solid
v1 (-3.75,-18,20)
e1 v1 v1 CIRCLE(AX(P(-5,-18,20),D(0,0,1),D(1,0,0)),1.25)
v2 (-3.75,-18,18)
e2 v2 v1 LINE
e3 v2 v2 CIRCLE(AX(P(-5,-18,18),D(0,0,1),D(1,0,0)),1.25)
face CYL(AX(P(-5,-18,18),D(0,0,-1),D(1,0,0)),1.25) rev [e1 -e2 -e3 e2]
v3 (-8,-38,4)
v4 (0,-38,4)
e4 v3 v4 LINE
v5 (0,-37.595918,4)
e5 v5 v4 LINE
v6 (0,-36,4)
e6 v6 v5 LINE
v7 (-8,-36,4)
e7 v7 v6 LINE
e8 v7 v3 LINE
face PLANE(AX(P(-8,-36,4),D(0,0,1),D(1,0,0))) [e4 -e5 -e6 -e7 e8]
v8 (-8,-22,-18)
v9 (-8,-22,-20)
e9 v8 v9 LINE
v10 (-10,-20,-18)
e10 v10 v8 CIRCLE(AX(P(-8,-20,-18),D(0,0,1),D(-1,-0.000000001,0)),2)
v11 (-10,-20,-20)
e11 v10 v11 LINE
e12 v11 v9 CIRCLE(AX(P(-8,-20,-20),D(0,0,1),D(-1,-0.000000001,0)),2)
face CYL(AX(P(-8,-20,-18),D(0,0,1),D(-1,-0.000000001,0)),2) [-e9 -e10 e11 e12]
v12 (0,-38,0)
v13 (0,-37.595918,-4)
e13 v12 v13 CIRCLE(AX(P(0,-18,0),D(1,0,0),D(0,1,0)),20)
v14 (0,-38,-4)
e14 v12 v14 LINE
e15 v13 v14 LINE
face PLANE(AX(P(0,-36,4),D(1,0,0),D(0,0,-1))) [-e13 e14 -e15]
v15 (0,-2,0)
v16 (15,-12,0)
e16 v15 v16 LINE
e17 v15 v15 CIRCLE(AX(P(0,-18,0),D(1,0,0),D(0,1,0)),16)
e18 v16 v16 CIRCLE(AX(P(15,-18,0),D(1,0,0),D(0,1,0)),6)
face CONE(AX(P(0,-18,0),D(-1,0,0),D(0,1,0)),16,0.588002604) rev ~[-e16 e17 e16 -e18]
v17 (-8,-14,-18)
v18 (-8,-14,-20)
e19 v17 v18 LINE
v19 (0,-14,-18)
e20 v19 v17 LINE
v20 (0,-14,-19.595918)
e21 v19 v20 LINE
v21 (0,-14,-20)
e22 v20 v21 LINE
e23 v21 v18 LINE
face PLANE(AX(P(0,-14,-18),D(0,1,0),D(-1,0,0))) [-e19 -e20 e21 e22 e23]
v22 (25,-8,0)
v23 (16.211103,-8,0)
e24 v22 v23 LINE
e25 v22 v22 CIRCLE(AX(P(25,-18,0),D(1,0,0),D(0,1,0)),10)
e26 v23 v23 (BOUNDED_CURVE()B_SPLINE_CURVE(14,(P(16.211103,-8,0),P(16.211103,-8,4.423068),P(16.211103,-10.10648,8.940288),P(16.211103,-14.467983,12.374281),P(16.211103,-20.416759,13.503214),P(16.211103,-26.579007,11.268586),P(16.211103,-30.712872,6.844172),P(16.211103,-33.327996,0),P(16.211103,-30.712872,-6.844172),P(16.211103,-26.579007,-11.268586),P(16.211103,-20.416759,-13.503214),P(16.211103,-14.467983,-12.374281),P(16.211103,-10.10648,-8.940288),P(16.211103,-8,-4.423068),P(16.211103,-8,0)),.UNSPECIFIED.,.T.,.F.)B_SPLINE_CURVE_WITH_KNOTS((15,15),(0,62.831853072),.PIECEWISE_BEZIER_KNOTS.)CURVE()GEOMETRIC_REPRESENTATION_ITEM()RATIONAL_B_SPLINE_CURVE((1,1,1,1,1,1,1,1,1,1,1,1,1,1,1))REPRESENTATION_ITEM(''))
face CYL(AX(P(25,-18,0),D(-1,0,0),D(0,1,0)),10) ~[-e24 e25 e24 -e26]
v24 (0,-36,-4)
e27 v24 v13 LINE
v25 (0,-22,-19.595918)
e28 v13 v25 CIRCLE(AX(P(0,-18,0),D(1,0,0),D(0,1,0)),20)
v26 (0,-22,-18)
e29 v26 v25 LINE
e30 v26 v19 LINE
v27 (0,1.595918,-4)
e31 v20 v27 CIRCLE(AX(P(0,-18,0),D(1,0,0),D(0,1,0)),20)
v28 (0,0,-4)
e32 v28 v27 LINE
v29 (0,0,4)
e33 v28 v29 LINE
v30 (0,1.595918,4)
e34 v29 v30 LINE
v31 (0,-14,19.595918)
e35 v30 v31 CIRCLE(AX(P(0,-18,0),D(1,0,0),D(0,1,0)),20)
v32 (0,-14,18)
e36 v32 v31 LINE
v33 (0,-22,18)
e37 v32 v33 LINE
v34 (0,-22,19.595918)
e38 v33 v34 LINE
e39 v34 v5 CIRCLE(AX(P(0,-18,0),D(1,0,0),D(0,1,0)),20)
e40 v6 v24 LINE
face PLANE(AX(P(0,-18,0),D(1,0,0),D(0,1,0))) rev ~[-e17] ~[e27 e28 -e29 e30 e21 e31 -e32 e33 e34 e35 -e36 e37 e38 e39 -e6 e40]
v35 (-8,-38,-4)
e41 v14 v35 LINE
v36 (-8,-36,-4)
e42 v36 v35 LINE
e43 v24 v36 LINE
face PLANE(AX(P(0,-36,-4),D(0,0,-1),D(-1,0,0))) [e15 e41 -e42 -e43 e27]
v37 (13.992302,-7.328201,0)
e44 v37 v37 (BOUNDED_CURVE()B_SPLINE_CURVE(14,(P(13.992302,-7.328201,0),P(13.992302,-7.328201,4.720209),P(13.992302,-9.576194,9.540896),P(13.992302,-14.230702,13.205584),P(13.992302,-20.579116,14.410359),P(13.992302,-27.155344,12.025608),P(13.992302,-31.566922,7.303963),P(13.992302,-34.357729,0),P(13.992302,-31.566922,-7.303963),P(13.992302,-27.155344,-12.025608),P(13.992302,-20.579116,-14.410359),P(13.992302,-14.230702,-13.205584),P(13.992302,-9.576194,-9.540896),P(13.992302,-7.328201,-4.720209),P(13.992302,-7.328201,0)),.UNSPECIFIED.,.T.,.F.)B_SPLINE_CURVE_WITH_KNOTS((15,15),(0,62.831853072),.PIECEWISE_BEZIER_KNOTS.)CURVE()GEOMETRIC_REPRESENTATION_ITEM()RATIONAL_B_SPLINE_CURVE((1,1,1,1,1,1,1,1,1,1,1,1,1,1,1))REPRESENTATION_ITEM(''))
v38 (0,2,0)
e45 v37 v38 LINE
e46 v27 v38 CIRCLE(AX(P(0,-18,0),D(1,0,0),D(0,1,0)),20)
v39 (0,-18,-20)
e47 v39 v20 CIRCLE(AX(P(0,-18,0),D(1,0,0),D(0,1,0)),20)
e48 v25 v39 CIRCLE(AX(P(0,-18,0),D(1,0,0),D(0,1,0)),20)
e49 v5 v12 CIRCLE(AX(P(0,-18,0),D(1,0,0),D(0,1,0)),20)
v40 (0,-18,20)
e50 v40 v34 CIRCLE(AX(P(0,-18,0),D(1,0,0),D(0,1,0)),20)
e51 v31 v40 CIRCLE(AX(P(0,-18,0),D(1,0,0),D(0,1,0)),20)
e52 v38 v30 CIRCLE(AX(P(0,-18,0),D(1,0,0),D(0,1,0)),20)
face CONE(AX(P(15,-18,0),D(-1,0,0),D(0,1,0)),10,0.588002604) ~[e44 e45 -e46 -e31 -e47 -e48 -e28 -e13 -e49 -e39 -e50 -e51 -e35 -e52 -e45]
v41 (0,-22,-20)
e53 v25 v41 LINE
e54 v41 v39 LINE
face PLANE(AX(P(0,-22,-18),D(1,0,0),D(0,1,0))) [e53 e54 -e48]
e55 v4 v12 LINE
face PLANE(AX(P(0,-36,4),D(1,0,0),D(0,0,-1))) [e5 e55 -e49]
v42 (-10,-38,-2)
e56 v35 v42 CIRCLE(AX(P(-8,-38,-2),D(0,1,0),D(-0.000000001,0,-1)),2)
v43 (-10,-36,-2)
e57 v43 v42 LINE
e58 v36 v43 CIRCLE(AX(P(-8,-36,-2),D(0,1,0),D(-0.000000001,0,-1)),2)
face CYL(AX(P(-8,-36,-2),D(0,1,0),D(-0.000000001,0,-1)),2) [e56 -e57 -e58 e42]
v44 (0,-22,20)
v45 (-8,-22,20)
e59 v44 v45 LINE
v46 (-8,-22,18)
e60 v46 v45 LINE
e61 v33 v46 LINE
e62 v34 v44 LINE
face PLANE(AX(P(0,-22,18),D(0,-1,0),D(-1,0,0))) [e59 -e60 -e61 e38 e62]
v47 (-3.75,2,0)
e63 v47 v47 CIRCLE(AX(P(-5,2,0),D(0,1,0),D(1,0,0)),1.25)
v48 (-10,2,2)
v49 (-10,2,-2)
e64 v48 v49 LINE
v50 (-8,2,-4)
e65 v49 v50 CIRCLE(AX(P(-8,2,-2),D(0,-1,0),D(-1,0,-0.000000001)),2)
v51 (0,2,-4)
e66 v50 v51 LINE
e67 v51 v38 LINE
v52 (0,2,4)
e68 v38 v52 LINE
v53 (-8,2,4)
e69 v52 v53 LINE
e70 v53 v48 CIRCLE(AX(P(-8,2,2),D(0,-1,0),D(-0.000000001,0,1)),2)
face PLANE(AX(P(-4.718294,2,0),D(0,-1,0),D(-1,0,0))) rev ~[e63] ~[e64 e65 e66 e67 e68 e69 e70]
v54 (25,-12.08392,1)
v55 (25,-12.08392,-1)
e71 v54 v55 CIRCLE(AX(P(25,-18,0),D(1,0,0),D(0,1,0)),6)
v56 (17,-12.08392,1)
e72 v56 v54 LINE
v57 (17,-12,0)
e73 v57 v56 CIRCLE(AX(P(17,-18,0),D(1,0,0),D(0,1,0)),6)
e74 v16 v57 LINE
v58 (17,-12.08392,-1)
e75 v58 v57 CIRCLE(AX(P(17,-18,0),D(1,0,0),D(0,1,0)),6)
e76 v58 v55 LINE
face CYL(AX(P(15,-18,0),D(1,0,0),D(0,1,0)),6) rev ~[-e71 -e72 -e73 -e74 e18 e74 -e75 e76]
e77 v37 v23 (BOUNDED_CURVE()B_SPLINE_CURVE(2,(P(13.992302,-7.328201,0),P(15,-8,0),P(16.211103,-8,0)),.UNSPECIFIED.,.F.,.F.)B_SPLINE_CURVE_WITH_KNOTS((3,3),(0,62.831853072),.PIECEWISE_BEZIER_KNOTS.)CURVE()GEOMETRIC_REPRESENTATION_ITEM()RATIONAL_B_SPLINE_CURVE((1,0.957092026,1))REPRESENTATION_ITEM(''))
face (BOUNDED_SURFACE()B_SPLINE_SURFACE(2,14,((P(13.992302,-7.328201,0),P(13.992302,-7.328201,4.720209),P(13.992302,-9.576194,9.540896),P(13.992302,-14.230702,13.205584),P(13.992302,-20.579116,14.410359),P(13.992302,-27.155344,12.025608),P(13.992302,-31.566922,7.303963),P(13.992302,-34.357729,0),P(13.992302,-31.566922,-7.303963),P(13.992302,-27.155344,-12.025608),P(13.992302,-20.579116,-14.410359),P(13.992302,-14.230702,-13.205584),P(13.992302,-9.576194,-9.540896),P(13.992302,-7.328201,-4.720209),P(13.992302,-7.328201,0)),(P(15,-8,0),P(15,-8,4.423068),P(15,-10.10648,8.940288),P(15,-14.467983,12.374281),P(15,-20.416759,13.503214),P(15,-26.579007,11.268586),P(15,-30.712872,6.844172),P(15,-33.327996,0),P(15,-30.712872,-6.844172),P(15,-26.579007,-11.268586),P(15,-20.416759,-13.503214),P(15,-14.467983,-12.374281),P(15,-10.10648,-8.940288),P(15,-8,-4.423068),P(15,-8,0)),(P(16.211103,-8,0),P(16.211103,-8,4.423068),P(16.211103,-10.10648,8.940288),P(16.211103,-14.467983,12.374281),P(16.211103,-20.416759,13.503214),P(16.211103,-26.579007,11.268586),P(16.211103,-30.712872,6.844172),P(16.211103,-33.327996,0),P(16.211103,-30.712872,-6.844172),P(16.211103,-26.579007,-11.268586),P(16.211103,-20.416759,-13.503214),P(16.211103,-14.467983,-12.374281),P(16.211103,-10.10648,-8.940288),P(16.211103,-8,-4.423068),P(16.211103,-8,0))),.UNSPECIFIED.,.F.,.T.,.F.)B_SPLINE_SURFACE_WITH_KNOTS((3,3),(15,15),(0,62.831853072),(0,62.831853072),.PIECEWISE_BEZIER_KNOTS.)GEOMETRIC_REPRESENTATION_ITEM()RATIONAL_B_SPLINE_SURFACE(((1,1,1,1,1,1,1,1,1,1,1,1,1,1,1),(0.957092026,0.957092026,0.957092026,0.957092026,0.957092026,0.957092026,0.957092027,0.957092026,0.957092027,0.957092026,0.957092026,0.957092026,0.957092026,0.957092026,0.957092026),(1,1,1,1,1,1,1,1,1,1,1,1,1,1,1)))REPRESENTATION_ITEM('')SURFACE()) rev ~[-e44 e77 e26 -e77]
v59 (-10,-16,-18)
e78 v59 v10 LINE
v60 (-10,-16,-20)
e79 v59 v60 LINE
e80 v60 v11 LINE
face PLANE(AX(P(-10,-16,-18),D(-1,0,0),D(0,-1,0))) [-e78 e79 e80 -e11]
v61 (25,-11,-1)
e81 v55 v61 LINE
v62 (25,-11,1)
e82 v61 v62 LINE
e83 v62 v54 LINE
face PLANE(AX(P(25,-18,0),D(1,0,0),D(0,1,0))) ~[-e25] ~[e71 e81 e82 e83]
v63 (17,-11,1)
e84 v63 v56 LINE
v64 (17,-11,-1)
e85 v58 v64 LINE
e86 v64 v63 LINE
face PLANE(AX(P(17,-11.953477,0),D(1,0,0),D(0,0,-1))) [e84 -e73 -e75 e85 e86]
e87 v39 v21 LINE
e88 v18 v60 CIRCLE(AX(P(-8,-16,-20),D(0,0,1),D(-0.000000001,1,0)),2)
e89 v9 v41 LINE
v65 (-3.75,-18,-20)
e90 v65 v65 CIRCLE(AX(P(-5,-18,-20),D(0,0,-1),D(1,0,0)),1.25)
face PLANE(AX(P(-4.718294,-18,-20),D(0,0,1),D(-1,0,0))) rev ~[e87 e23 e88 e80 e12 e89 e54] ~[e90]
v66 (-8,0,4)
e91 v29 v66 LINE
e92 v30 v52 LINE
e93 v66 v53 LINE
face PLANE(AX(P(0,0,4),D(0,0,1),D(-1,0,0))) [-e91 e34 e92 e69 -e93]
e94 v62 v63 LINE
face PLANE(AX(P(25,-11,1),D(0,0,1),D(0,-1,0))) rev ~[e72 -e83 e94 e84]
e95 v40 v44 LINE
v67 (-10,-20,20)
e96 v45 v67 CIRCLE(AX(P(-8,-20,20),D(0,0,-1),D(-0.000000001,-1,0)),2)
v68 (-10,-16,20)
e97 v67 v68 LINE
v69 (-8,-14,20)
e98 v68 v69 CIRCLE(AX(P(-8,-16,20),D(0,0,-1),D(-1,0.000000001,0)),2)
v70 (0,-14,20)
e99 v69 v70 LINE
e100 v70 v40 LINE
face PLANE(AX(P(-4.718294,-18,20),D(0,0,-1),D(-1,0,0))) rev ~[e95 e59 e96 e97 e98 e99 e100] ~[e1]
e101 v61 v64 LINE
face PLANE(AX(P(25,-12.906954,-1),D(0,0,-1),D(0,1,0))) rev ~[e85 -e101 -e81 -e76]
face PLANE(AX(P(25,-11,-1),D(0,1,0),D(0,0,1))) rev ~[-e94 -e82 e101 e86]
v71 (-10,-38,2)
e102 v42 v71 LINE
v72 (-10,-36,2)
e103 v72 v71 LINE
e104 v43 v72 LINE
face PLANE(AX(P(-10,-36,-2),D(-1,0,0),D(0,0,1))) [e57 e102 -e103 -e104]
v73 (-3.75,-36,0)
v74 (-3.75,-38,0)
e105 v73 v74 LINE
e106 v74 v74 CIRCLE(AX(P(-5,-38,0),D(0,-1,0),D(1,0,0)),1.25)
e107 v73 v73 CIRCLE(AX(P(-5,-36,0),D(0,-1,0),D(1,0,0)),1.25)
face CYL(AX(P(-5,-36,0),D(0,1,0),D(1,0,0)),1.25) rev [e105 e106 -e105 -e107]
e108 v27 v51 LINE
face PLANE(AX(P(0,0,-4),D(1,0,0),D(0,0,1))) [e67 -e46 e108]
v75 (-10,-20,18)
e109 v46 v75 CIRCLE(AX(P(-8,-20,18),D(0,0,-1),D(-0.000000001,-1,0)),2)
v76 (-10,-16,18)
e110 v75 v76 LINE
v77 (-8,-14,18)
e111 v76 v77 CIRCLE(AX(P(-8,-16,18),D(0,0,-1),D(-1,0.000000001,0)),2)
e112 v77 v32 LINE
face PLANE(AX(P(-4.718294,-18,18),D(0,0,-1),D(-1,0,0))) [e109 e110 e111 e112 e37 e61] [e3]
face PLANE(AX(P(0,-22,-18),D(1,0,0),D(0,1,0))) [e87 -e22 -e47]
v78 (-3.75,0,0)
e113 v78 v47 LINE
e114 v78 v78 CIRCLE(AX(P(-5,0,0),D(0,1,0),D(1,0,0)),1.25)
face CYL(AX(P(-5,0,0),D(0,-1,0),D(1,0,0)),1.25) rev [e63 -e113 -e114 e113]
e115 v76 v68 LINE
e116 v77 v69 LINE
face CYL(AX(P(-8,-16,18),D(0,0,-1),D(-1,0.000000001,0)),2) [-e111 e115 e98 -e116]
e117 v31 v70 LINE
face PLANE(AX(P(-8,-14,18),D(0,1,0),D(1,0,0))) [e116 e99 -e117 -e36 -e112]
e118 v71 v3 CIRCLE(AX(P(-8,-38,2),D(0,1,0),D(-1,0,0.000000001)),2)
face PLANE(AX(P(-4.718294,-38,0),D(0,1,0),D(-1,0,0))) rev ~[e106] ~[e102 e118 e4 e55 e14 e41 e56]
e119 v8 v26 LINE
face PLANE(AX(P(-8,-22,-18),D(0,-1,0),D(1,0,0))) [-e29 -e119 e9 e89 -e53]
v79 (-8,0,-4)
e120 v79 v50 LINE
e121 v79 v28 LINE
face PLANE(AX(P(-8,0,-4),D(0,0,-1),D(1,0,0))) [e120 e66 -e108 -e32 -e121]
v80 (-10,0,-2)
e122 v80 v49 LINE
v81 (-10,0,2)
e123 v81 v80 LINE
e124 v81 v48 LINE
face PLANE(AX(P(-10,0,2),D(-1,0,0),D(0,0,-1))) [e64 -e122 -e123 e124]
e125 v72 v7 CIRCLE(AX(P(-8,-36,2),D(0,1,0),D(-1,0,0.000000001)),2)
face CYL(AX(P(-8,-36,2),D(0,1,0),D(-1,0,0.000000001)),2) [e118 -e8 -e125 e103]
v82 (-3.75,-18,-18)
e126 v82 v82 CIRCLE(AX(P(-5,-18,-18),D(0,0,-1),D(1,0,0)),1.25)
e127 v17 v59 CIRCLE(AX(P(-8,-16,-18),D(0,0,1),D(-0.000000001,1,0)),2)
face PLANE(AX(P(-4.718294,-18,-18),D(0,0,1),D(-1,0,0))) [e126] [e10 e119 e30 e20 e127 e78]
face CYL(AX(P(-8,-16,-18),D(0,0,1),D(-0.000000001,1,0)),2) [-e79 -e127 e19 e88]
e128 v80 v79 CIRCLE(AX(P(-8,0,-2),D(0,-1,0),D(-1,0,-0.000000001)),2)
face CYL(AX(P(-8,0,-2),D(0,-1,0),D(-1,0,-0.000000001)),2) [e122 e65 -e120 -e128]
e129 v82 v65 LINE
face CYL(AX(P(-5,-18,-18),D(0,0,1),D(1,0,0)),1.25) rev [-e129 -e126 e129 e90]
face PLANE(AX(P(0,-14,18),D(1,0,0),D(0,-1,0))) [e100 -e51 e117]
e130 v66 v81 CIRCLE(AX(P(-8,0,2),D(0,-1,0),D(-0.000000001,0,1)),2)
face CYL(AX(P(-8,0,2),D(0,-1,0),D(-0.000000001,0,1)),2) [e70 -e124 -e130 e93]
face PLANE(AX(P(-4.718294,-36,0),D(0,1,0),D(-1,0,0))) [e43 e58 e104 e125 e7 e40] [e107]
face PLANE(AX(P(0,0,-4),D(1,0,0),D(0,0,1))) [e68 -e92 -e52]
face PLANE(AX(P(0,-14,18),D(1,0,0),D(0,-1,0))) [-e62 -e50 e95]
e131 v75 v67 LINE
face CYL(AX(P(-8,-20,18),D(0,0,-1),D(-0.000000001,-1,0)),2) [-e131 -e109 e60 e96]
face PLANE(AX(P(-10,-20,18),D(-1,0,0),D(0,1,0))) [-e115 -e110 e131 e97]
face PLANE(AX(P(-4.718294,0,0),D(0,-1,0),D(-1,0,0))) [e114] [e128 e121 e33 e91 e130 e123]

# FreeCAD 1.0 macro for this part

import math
import FreeCAD as App
import Part
import Sketcher
Q = App.Units.Quantity


def edges_at(feature, points):
    """Names of the edges that pass closest to the given points."""
    edges = feature.Shape.Edges
    near = lambda p: min(range(len(edges)), key=lambda i: edges[i].distToShape(Part.Vertex(*p))[0])
    return sorted({f"Edge{near(p) + 1}" for p in points})


def add_polygon(sketch, points):
    """Adds a closed chain of lines whose ends are joined by coincident constraints."""
    first, n = sketch.GeometryCount, len(points)
    for a, b in zip(points, points[1:] + points[:1]):
        sketch.addGeometry(Part.LineSegment(App.Vector(*a, 0), App.Vector(*b, 0)), False)
    for i in range(n):
        sketch.addConstraint(Sketcher.Constraint("Coincident", first + i, 2, first + (i + 1) % n, 1))

doc = App.newDocument("Part")
params = doc.addObject("Spreadsheet::Sheet", "Params")
for row, (alias, value) in enumerate([
    ("sketch1_radius", "2 mm"),
    ("sketch1_diameter", "2.5 mm"),
    ("sketch1_width", "8 mm"),
    ("pad1_length", "2 mm"),
    ("sketch2_width", "10 mm"),
    ("sketch2_width2", "25 mm"),
    ("sketch2_height", "4 mm"),
    ("revolution_angle", "360 deg"),
    ("fillet_radius", "4 mm"),
    ("sketch3_height", "2 mm"),
    ("pocket1_length", "8 mm"),
], start=1):
    params.set(f"A{row}", alias)
    params.set(f"B{row}", "=" + value)
    params.setAlias(f"B{row}", alias)

body = doc.addObject("PartDesign::Body", "Body")

sketch1 = body.newObject("Sketcher::SketchObject", "Sketch")
sketch1.AttachmentSupport = (doc.getObject("XZ_Plane"), [""])
sketch1.MapMode = "FlatFace"
sketch1.addGeometry([
    Part.LineSegment(App.Vector(0, 4, 0), App.Vector(0, -4, 0)),
    Part.LineSegment(App.Vector(0, -4, 0), App.Vector(-8, -4, 0)),
    Part.ArcOfCircle(Part.Circle(App.Vector(-8, -2, 0), App.Vector(0, 0, 1), 2), math.radians(-180), math.radians(-90)),
    Part.LineSegment(App.Vector(-10, -2, 0), App.Vector(-10, 2, 0)),
    Part.ArcOfCircle(Part.Circle(App.Vector(-8, 2, 0), App.Vector(0, 0, 1), 2), math.radians(90), math.radians(180)),
    Part.LineSegment(App.Vector(-8, 4, 0), App.Vector(0, 4, 0)),
    Part.Circle(App.Vector(-5, 0, 0), App.Vector(0, 0, 1), 1.2),
], False)
sketch1.addConstraint([
    Sketcher.Constraint("Coincident", 0, 2, 1, 1),
    Sketcher.Constraint("Tangent", 1, 2, 2, 2),
    Sketcher.Constraint("Tangent", 2, 1, 3, 1),
    Sketcher.Constraint("Tangent", 3, 2, 4, 2),
    Sketcher.Constraint("Tangent", 4, 1, 5, 1),
    Sketcher.Constraint("Coincident", 5, 2, 0, 1),
    Sketcher.Constraint("Vertical", 0),
    Sketcher.Constraint("Horizontal", 1),
    Sketcher.Constraint("Vertical", 3),
    Sketcher.Constraint("Horizontal", 5),
    Sketcher.Constraint("Equal", 2, 4),
    Sketcher.Constraint("Symmetric", 0, 2, 5, 2, -1, 1),
    Sketcher.Constraint("PointOnObject", 6, 3, -1),
    Sketcher.Constraint("Equal", 5, 0),
    Sketcher.Constraint("Radius", 2, Q("2 mm")),
    Sketcher.Constraint("Diameter", 6, Q("2.5 mm")),
    Sketcher.Constraint("DistanceX", 1, 2, 1, 1, Q("8 mm")),
    Sketcher.Constraint("DistanceX", 6, 3, -1, 1, Q("5 mm")),
])
sketch1.setExpression("Constraints[14]", "Params.sketch1_radius")
sketch1.setExpression("Constraints[15]", "Params.sketch1_diameter")
sketch1.setExpression("Constraints[16]", "Params.sketch1_width")
pad1 = body.newObject("PartDesign::Pad", "Pad")
pad1.Profile = sketch1
pad1.setExpression("Length", "Params.pad1_length")
pad1.Reversed = True

sketch2 = body.newObject("Sketcher::SketchObject", "Sketch001")
sketch2.AttachmentSupport = (doc.getObject("XY_Plane"), [""])
sketch2.MapMode = "FlatFace"
add_polygon(sketch2, [(0, 2), (0, -2), (15, -12), (25, -12), (25, -8), (15, -8)])
sketch2.addGeometry(Part.LineSegment(App.Vector(0, -18, 0), App.Vector(25, -18, 0)), True)
sketch2.addConstraint([
    Sketcher.Constraint("Vertical", 0),
    Sketcher.Constraint("Horizontal", 2),
    Sketcher.Constraint("Vertical", 3),
    Sketcher.Constraint("Horizontal", 4),
    Sketcher.Constraint("Horizontal", 6),
    Sketcher.Constraint("Symmetric", 0, 2, 5, 2, -1, 1),
    Sketcher.Constraint("PointOnObject", 6, 1, -2),
    Sketcher.Constraint("Parallel", 1, 5),
    Sketcher.Constraint("Vertical", 1, 2, 4, 2),
    Sketcher.Constraint("Vertical", 3, 2, 6, 2),
    Sketcher.Constraint("DistanceX", 2, 1, 2, 2, Q("10 mm")),
    Sketcher.Constraint("DistanceX", 6, 1, 6, 2, Q("25 mm")),
    Sketcher.Constraint("DistanceY", 0, 2, 0, 1, Q("4 mm")),
    Sketcher.Constraint("DistanceY", 1, 2, -1, 1, Q("12 mm")),
    Sketcher.Constraint("DistanceY", 6, 1, -1, 1, Q("18 mm")),
])
sketch2.setExpression("Constraints[16]", "Params.sketch2_width")
sketch2.setExpression("Constraints[17]", "Params.sketch2_width2")
sketch2.setExpression("Constraints[18]", "Params.sketch2_height")
revolution = body.newObject("PartDesign::Revolution", "Revolution")
revolution.Profile = sketch2
revolution.ReferenceAxis = (sketch2, ["Axis0"])
revolution.setExpression("Angle", "Params.revolution_angle")
doc.recompute()

datumline = body.newObject("PartDesign::Line", "DatumLine")
datumline.Placement = App.Placement(App.Vector(0, -18, 0), App.Rotation(App.Vector(0, 0, 1), App.Vector(1, 0, 0)))
polarpattern = body.newObject("PartDesign::PolarPattern", "PolarPattern")
polarpattern.Originals = [pad1]
polarpattern.Axis = (datumline, [""])
polarpattern.Angle = 360
polarpattern.Occurrences = 4
body.Tip = polarpattern
doc.recompute()

fillet = body.newObject("PartDesign::Fillet", "Fillet")
fillet.Base = (polarpattern, edges_at(polarpattern, [(15, -28, 0)]))
fillet.setExpression("Radius", "Params.fillet_radius")

sketch3 = body.newObject("Sketcher::SketchObject", "Sketch002")
sketch3.AttachmentSupport = (doc.getObject("YZ_Plane"), [""])
sketch3.MapMode = "FlatFace"
sketch3.AttachmentOffset = App.Placement(App.Vector(0, 0, 25), App.Rotation())
add_polygon(sketch3, [(-11, -1), (-11, 1), (-12.9, 1), (-12.9, -1)])
sketch3.addConstraint([
    Sketcher.Constraint("Vertical", 0),
    Sketcher.Constraint("Horizontal", 1),
    Sketcher.Constraint("Vertical", 2),
    Sketcher.Constraint("Horizontal", 3),
    Sketcher.Constraint("DistanceY", 0, 1, 0, 2, Q("2 mm")),
    Sketcher.Constraint("DistanceX", 0, 2, -1, 1, Q("11 mm")),
    Sketcher.Constraint("DistanceY", -1, 1, 0, 2, Q("1 mm")),
    Sketcher.Constraint("DistanceX", 1, 2, 1, 1, Q("1.906954 mm")),
])
sketch3.setExpression("Constraints[8]", "Params.sketch3_height")
pocket1 = body.newObject("PartDesign::Pocket", "Pocket")
pocket1.Profile = sketch3
pocket1.setExpression("Length", "Params.pocket1_length")

doc.recompute()
